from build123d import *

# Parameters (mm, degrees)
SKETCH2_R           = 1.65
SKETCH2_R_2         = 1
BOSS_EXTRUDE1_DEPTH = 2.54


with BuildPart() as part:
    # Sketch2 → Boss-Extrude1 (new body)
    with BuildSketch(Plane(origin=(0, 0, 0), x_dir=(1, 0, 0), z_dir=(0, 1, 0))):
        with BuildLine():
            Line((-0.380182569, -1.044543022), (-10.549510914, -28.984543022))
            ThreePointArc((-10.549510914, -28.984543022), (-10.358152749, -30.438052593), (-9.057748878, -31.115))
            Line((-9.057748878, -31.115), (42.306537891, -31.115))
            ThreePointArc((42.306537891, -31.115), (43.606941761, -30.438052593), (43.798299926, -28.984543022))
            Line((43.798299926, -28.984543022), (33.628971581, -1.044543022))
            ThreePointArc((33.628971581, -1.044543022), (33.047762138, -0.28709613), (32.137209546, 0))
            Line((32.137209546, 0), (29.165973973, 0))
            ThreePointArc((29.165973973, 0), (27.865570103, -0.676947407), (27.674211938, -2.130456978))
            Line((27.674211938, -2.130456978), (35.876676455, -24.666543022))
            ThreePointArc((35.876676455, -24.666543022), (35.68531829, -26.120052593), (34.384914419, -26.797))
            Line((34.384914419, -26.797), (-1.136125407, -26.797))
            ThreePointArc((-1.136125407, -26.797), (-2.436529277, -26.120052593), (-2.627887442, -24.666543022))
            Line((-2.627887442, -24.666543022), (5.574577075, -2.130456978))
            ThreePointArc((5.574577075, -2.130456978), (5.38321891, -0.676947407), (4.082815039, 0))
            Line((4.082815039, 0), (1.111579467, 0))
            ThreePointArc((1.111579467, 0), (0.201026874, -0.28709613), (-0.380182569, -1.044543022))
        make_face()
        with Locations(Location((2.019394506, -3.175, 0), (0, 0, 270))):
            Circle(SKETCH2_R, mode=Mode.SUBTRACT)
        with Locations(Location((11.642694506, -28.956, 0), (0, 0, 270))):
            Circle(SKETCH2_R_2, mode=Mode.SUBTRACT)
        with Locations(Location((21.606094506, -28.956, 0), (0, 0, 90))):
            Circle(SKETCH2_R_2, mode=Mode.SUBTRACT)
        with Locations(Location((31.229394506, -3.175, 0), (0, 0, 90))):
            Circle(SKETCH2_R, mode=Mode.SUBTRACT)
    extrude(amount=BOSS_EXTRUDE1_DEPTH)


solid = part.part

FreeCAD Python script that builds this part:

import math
import FreeCAD as App
import Part
import Sketcher
from FreeCAD import Vector
Q = App.Units.Quantity

doc = App.newDocument("Part")
body = doc.addObject("PartDesign::Body", "Body")

sketch1 = doc.addObject("Sketcher::SketchObject", "Sketch")
body.addObject(sketch1)
sketch1.AttachmentSupport = (doc.XZ_Plane, [""])
sketch1.MapMode = "FlatFace"
sketch1.addGeometry(Part.LineSegment(Vector(-0.380183, 1.044543, 0), Vector(-10.549511, 28.984543, 0)), False)
sketch1.addGeometry(Part.ArcOfCircle(Part.Circle(Vector(-9.057749, 29.5275, 0), Vector(0, 0, 1), 1.5875), math.radians(90), math.radians(200)), False)
sketch1.addGeometry(Part.LineSegment(Vector(-9.057749, 31.115, 0), Vector(42.306538, 31.115, 0)), False)
sketch1.addGeometry(Part.ArcOfCircle(Part.Circle(Vector(42.306538, 29.5275, 0), Vector(0, 0, 1), 1.5875), math.radians(-20), math.radians(90)), False)
sketch1.addGeometry(Part.LineSegment(Vector(43.7983, 28.984543, 0), Vector(33.628972, 1.044543, 0)), False)
sketch1.addGeometry(Part.ArcOfCircle(Part.Circle(Vector(32.13721, 1.5875, 0), Vector(0, 0, 1), 1.5875), math.radians(-90), math.radians(-20)), False)
sketch1.addGeometry(Part.LineSegment(Vector(32.13721, 0, 0), Vector(29.165974, 0, 0)), False)
sketch1.addGeometry(Part.ArcOfCircle(Part.Circle(Vector(29.165974, 1.5875, 0), Vector(0, 0, 1), 1.5875), math.radians(160), math.radians(270)), False)
sketch1.addGeometry(Part.LineSegment(Vector(27.674212, 2.130457, 0), Vector(35.876676, 24.666543, 0)), False)
sketch1.addGeometry(Part.ArcOfCircle(Part.Circle(Vector(34.384914, 25.2095, 0), Vector(0, 0, 1), 1.5875), math.radians(-20), math.radians(90)), False)
sketch1.addGeometry(Part.LineSegment(Vector(34.384914, 26.797, 0), Vector(-1.136125, 26.797, 0)), False)
sketch1.addGeometry(Part.ArcOfCircle(Part.Circle(Vector(-1.136125, 25.2095, 0), Vector(0, 0, 1), 1.5875), math.radians(90), math.radians(200)), False)
sketch1.addGeometry(Part.LineSegment(Vector(-2.627887, 24.666543, 0), Vector(5.574577, 2.130457, 0)), False)
sketch1.addGeometry(Part.ArcOfCircle(Part.Circle(Vector(4.082815, 1.5875, 0), Vector(0, 0, 1), 1.5875), math.radians(-90), math.radians(20)), False)
sketch1.addGeometry(Part.LineSegment(Vector(4.082815, 0, 0), Vector(1.111579, 0, 0)), False)
sketch1.addGeometry(Part.ArcOfCircle(Part.Circle(Vector(1.111579, 1.5875, 0), Vector(0, 0, 1), 1.5875), math.radians(-160), math.radians(-90)), False)
sketch1.addGeometry(Part.Circle(Vector(11.642695, 28.956, 0), Vector(0, 0, 1), 1), False)
sketch1.addGeometry(Part.Circle(Vector(21.606095, 28.956, 0), Vector(0, 0, 1), 1), False)
sketch1.addGeometry(Part.Circle(Vector(2.019395, 3.175, 0), Vector(0, 0, 1), 1.65), False)
sketch1.addGeometry(Part.Circle(Vector(31.229395, 3.175, 0), Vector(0, 0, 1), 1.65), False)
sketch1.addConstraint(Sketcher.Constraint("Tangent", 0, 2, 1, 2))
sketch1.addConstraint(Sketcher.Constraint("Tangent", 1, 1, 2, 1))
sketch1.addConstraint(Sketcher.Constraint("Tangent", 2, 2, 3, 2))
sketch1.addConstraint(Sketcher.Constraint("Tangent", 3, 1, 4, 1))
sketch1.addConstraint(Sketcher.Constraint("Tangent", 4, 2, 5, 2))
sketch1.addConstraint(Sketcher.Constraint("Tangent", 5, 1, 6, 1))
sketch1.addConstraint(Sketcher.Constraint("Tangent", 6, 2, 7, 2))
sketch1.addConstraint(Sketcher.Constraint("Tangent", 7, 1, 8, 1))
sketch1.addConstraint(Sketcher.Constraint("Tangent", 8, 2, 9, 1))
sketch1.addConstraint(Sketcher.Constraint("Tangent", 9, 2, 10, 1))
sketch1.addConstraint(Sketcher.Constraint("Tangent", 10, 2, 11, 1))
sketch1.addConstraint(Sketcher.Constraint("Tangent", 11, 2, 12, 1))
sketch1.addConstraint(Sketcher.Constraint("Tangent", 12, 2, 13, 2))
sketch1.addConstraint(Sketcher.Constraint("Tangent", 13, 1, 14, 1))
sketch1.addConstraint(Sketcher.Constraint("Tangent", 14, 2, 15, 2))
sketch1.addConstraint(Sketcher.Constraint("Tangent", 15, 1, 0, 1))
sketch1.addConstraint(Sketcher.Constraint("Horizontal", 2))
sketch1.addConstraint(Sketcher.Constraint("Horizontal", 6))
sketch1.addConstraint(Sketcher.Constraint("Horizontal", 10))
sketch1.addConstraint(Sketcher.Constraint("Horizontal", 14))
sketch1.addConstraint(Sketcher.Constraint("Equal", 1, 3))
sketch1.addConstraint(Sketcher.Constraint("Equal", 3, 5))
sketch1.addConstraint(Sketcher.Constraint("Equal", 5, 7))
sketch1.addConstraint(Sketcher.Constraint("Equal", 7, 9))
sketch1.addConstraint(Sketcher.Constraint("Equal", 9, 11))
sketch1.addConstraint(Sketcher.Constraint("Equal", 11, 13))
sketch1.addConstraint(Sketcher.Constraint("Equal", 13, 15))
sketch1.addConstraint(Sketcher.Constraint("Equal", 16, 17))
sketch1.addConstraint(Sketcher.Constraint("Equal", 18, 19))
sketch1.addConstraint(Sketcher.Constraint("PointOnObject", 5, 1, -1))
sketch1.addConstraint(Sketcher.Constraint("PointOnObject", 13, 1, -1))
sketch1.addConstraint(Sketcher.Constraint("Parallel", 4, 8))
sketch1.addConstraint(Sketcher.Constraint("Parallel", 0, 12))
sketch1.addConstraint(Sketcher.Constraint("Horizontal", 16, 3, 17, 3))
sketch1.addConstraint(Sketcher.Constraint("Horizontal", 18, 3, 19, 3))
sketch1.addConstraint(Sketcher.Constraint("Horizontal", 0, 2, 3, 1))
sketch1.addConstraint(Sketcher.Constraint("Equal", 6, 14))
sketch1.addConstraint(Sketcher.Constraint("Diameter", 16, 2.0))
sketch1.addConstraint(Sketcher.Constraint("Diameter", 18, 3.3))
sketch1.addConstraint(Sketcher.Constraint("Angle", 0, Q("110 deg")))
sketch1.addConstraint(Sketcher.Constraint("Radius", 1, 1.5875))
sketch1.addConstraint(Sketcher.Constraint("DistanceY", 5, 3, 3, 3, 27.94))
sketch1.addConstraint(Sketcher.Constraint("DistanceY", 18, 3, 1, 1, 27.94))
sketch1.addConstraint(Sketcher.Constraint("DistanceY", -1, 1, 16, 3, 28.956))
sketch1.addConstraint(Sketcher.Constraint("DistanceY", -1, 1, 9, 2, 26.797))
sketch1.addConstraint(Sketcher.Constraint("DistanceX", 10, 2, 10, 1, 35.52104))
sketch1.addConstraint(Sketcher.Constraint("DistanceX", -1, 1, 3, 1, 43.7983))
sketch1.addConstraint(Sketcher.Constraint("DistanceX", 16, 3, 17, 3, 9.9634))
sketch1.addConstraint(Sketcher.Constraint("DistanceX", 18, 3, 16, 3, 9.6233))
sketch1.addConstraint(Sketcher.Constraint("DistanceX", 17, 3, 19, 3, 9.6233))
sketch1.addConstraint(Sketcher.Constraint("DistanceX", 2, 1, 2, 2, 51.364287))
sketch1.addConstraint(Sketcher.Constraint("DistanceX", 11, 3, 16, 3, 12.77882))
pad1 = doc.addObject("PartDesign::Pad", "Pad")
body.addObject(pad1)
pad1.Profile = sketch1
pad1.Length = 2.54
pad1.Reversed = True

doc.recompute()
